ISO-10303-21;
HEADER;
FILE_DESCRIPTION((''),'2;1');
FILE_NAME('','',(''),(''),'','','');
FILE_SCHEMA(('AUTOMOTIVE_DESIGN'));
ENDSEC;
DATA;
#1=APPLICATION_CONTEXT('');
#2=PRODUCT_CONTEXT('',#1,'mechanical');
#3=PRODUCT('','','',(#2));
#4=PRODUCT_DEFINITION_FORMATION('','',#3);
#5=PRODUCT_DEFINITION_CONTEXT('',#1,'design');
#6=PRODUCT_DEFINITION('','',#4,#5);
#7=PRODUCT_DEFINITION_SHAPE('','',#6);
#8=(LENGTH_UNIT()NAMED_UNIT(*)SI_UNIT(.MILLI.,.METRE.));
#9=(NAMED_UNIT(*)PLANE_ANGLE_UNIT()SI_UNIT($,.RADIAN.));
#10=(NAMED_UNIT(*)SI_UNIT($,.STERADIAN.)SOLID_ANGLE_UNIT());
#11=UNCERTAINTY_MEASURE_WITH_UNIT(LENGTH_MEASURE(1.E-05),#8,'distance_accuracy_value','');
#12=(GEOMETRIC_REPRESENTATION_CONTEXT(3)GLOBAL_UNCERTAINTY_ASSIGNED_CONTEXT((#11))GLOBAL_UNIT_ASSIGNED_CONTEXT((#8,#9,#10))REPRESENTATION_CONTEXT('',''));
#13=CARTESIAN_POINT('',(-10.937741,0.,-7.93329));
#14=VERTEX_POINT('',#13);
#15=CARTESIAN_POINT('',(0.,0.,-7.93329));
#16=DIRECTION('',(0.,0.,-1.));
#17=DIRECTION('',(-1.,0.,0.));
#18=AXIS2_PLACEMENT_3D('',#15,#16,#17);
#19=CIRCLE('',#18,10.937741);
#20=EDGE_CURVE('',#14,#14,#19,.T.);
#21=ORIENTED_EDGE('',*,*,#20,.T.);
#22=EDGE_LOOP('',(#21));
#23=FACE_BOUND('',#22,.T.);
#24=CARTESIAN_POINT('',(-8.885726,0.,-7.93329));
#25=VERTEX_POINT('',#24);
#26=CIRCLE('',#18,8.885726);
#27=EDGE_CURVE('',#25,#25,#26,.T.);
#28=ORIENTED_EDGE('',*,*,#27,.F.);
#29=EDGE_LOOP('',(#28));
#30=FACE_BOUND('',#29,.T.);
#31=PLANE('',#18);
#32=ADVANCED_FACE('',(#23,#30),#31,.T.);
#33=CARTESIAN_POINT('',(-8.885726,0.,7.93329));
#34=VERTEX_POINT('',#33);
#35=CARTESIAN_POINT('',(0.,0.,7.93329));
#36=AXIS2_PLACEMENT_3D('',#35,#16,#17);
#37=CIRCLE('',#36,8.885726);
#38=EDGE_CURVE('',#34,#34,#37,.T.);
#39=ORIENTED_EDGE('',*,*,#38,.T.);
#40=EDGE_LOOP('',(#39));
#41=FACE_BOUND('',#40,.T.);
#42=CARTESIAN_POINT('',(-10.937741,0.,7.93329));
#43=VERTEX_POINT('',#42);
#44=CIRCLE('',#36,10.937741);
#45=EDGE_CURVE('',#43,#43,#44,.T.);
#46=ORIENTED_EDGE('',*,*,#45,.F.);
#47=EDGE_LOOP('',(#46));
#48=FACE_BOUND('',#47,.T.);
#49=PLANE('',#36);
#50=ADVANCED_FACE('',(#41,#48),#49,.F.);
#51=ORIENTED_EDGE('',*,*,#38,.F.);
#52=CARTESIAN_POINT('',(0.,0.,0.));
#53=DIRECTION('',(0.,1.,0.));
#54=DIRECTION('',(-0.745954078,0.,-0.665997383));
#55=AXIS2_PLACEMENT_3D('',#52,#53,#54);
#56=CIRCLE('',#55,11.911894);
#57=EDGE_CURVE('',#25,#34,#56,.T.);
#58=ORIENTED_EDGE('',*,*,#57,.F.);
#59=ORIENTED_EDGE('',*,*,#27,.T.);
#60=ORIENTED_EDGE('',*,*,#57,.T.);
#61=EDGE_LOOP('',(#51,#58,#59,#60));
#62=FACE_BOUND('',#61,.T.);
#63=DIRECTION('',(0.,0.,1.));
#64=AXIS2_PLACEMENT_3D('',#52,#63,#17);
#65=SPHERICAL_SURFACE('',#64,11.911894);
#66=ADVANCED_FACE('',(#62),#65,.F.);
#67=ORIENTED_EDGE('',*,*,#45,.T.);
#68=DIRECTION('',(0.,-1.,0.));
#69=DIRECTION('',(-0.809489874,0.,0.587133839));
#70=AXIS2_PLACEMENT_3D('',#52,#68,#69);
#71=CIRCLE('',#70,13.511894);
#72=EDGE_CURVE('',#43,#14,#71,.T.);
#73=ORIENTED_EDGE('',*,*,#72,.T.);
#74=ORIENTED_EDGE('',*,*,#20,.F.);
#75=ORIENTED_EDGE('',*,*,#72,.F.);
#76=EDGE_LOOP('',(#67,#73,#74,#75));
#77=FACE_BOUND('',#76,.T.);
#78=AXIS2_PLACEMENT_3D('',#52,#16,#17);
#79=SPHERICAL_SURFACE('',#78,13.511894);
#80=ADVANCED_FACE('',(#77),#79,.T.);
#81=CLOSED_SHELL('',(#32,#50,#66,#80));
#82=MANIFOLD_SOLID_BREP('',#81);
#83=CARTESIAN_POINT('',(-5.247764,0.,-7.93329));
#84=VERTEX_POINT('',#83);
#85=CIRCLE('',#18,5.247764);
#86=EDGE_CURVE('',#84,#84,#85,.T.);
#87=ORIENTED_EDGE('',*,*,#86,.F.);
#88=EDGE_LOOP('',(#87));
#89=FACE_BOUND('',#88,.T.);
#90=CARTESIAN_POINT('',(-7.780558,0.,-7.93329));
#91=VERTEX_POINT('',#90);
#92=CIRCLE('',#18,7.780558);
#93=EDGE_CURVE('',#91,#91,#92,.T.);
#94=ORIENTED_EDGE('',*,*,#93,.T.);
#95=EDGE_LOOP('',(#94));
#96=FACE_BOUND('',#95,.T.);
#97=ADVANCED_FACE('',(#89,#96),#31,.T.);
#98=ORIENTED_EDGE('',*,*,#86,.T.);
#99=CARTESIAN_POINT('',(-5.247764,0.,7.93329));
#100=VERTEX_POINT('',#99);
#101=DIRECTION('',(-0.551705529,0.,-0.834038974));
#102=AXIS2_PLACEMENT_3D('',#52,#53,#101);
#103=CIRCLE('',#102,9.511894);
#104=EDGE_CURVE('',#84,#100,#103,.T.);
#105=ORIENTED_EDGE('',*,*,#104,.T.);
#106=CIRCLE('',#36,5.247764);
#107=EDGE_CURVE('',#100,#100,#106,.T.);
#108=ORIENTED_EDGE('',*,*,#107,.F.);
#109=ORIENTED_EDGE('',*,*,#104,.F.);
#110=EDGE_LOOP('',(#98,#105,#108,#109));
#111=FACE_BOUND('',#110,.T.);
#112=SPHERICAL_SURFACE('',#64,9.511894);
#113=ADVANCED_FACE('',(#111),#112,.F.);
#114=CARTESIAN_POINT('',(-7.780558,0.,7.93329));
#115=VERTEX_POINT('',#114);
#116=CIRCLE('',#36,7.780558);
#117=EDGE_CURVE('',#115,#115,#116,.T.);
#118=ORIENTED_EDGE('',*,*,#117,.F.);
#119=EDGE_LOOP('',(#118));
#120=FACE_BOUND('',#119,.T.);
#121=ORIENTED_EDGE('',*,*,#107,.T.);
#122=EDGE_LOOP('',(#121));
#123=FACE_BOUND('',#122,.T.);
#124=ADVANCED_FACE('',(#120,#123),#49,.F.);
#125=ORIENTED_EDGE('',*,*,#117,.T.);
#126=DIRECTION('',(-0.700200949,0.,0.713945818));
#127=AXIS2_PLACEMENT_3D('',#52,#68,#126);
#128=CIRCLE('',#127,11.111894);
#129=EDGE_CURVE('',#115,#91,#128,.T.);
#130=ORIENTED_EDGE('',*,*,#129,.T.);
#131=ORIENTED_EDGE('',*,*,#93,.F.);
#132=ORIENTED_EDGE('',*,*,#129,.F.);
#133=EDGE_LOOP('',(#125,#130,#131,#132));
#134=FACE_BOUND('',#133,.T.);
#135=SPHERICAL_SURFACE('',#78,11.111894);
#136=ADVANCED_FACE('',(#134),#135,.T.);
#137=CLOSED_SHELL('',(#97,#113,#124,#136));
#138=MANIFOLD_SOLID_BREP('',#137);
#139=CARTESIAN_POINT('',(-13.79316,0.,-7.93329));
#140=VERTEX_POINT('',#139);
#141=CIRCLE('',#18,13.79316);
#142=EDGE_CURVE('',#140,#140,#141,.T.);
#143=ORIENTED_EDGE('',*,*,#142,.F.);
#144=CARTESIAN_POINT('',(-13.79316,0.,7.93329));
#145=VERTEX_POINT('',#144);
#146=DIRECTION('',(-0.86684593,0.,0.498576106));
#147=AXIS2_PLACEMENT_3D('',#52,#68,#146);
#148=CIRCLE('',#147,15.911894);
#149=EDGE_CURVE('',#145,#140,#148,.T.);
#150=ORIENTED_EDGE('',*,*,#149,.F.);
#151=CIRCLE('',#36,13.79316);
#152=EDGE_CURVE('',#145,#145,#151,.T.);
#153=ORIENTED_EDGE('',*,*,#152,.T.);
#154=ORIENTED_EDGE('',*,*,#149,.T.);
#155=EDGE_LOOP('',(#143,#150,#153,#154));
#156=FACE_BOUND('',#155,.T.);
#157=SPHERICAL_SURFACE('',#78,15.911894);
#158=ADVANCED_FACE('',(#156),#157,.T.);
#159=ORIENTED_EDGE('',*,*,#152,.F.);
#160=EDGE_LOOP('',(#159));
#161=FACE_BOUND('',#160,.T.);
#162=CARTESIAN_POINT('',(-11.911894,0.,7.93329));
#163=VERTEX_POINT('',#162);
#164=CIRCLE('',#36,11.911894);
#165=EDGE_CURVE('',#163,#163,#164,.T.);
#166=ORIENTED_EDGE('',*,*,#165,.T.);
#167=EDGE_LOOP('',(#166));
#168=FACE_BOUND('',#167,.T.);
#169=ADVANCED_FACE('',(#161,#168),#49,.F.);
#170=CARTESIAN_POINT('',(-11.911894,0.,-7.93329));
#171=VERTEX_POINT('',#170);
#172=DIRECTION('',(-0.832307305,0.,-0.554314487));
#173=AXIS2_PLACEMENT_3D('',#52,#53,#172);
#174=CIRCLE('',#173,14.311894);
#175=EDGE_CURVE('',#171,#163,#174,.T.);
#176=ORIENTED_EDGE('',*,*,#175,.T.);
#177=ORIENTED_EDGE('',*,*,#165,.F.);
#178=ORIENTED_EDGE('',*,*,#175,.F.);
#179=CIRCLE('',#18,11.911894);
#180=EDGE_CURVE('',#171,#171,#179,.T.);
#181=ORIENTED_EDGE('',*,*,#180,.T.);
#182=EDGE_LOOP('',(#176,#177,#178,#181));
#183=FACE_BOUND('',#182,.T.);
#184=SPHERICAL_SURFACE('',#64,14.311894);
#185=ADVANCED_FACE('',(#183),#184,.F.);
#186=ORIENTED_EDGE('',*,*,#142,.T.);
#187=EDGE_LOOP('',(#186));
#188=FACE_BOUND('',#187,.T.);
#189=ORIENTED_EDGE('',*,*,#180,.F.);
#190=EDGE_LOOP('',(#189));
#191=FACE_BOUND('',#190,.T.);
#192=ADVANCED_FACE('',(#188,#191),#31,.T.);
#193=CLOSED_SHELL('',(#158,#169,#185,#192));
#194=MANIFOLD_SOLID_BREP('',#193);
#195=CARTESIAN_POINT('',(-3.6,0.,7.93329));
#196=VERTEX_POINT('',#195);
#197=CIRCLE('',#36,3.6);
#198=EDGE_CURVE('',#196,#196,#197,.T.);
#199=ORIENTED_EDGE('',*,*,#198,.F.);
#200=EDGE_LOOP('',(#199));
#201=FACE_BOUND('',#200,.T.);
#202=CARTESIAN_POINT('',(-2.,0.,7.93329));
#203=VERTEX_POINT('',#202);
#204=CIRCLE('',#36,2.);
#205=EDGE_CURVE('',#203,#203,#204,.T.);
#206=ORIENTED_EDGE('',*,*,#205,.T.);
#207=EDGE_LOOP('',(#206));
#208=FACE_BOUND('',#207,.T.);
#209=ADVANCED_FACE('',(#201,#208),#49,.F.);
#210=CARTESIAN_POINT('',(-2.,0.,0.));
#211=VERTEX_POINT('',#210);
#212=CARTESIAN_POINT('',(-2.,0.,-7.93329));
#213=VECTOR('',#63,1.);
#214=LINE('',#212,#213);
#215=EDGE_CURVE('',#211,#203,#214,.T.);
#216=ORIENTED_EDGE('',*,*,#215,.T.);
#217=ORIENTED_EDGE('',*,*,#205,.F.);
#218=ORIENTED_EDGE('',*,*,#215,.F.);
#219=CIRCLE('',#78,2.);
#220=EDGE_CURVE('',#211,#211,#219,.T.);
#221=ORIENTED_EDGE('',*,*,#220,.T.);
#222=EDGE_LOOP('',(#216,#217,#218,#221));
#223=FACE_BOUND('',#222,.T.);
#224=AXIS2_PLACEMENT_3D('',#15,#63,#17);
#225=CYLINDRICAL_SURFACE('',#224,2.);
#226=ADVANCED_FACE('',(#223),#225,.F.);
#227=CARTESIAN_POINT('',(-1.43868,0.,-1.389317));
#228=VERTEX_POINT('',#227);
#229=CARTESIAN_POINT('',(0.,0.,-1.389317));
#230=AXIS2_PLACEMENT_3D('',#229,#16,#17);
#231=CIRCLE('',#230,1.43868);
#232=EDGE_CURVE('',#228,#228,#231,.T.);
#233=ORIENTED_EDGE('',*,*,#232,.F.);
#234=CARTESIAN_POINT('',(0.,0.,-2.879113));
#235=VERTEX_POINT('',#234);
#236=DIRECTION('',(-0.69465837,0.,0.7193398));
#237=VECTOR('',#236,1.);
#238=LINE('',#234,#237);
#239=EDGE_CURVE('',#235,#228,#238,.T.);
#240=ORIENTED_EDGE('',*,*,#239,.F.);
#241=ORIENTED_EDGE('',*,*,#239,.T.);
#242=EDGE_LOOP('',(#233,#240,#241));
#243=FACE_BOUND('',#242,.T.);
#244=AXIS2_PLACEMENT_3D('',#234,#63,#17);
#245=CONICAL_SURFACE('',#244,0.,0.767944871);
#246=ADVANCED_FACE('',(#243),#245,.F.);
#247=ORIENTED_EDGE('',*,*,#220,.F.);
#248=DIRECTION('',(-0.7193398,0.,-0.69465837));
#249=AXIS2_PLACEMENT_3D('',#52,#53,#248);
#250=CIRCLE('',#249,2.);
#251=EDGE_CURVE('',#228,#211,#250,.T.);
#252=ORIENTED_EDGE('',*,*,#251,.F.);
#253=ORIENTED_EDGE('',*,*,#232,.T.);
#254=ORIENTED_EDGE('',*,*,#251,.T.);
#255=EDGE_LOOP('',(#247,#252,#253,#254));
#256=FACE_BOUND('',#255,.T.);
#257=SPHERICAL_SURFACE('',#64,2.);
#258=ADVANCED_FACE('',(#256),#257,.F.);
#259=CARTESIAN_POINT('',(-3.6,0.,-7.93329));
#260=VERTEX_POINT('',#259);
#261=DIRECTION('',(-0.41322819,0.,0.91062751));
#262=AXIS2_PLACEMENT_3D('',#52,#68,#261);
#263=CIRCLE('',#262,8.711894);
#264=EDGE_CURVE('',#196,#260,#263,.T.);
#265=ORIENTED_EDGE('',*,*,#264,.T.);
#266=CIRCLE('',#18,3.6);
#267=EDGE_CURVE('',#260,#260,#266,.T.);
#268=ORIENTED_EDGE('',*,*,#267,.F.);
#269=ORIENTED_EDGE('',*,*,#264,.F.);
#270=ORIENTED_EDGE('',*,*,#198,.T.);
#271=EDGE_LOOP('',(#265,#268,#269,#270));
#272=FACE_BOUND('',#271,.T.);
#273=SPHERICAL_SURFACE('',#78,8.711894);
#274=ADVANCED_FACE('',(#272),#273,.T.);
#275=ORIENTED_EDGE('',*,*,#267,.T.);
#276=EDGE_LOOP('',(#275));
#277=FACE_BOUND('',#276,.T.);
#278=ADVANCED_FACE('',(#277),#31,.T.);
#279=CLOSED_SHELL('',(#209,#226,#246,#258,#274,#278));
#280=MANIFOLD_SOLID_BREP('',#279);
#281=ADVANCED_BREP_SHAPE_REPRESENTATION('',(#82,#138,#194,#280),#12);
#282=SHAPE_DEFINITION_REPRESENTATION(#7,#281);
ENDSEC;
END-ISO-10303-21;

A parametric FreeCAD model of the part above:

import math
import FreeCAD as App
import Part
import Sketcher

V = App.Vector
Q = App.Units.Quantity

doc = App.newDocument("Part")
body = doc.addObject("PartDesign::Body", "Body")

# Sketch on XZ plane
sketch1 = doc.addObject("Sketcher::SketchObject", "Sketch")
body.addObject(sketch1)
sketch1.AttachmentSupport = (doc.XZ_Plane, [""])
sketch1.MapMode = "FlatFace"
sketch1.addGeometry([
    Part.LineSegment(V(-2, 7.9, 0), V(-3.6, 7.9, 0)),  # 0
    Part.ArcOfCircle(Part.Circle(V(0, 0, 0), V(0, 0, 1), 8.7), math.radians(114), math.radians(246)),  # 1
    Part.LineSegment(V(-3.6, -7.9, 0), V(0, -7.9, 0)),  # 2
    Part.LineSegment(V(0, -7.9, 0), V(0, -2.9, 0)),  # 3
    Part.LineSegment(V(0, -2.9, 0), V(-1.4, -1.4, 0)),  # 4
    Part.ArcOfCircle(Part.Circle(V(0, 0, 0), V(0, 0, 1), 2), math.radians(180), math.radians(224)),  # 5
    Part.LineSegment(V(-2, 0, 0), V(-2, 7.9, 0)),  # 6
], False)
sketch1.addConstraint([
    Sketcher.Constraint("Coincident", 0, 2, 1, 1),
    Sketcher.Constraint("Coincident", 1, 2, 2, 1),
    Sketcher.Constraint("Coincident", 2, 2, 3, 1),
    Sketcher.Constraint("Coincident", 3, 2, 4, 1),
    Sketcher.Constraint("Tangent", 4, 2, 5, 2),
    Sketcher.Constraint("Tangent", 5, 1, 6, 1),
    Sketcher.Constraint("Coincident", 6, 2, 0, 1),
    Sketcher.Constraint("Horizontal", 0),
    Sketcher.Constraint("Horizontal", 2),
    Sketcher.Constraint("Vertical", 3),
    Sketcher.Constraint("Vertical", 6),
    Sketcher.Constraint("Coincident", 1, 3, -1, 1),
    Sketcher.Constraint("Coincident", 5, 3, -1, 1),
    Sketcher.Constraint("PointOnObject", 2, 2, -2),
    Sketcher.Constraint("Vertical", 0, 2, 1, 2),
    Sketcher.Constraint("Radius", 5, Q("2 mm")),
    Sketcher.Constraint("Angle", 4, Q("134 deg")),
    Sketcher.Constraint("DistanceX", 0, 2, 0, 1, Q("1.6 mm")),
    Sketcher.Constraint("Radius", 1, Q("8.711894 mm")),
])
revolution = doc.addObject("PartDesign::Revolution", "Revolution")
body.addObject(revolution)
revolution.Profile = sketch1
revolution.ReferenceAxis = (sketch1, ["V_Axis"])
revolution.Angle = 360
body2 = doc.addObject("PartDesign::Body", "Body001")

# Sketch on XZ plane
sketch2 = doc.addObject("Sketcher::SketchObject", "Sketch001")
body2.addObject(sketch2)
sketch2.AttachmentSupport = (doc.getObject("XZ_Plane001"), [""])
sketch2.MapMode = "FlatFace"
sketch2.addGeometry([
    Part.ArcOfCircle(Part.Circle(V(0, 0, 0), V(0, 0, 1), 9.5), math.radians(123), math.radians(237)),
    Part.LineSegment(V(-5.2, 7.9, 0), V(-7.8, 7.9, 0)),
    Part.ArcOfCircle(Part.Circle(V(0, 0, 0), V(0, 0, 1), 11.1), math.radians(134), math.radians(226)),
    Part.LineSegment(V(-7.8, -7.9, 0), V(-5.2, -7.9, 0)),
], False)
sketch2.addConstraint([
    Sketcher.Constraint("Coincident", 0, 1, 1, 1),
    Sketcher.Constraint("Coincident", 1, 2, 2, 1),
    Sketcher.Constraint("Coincident", 2, 2, 3, 1),
    Sketcher.Constraint("Coincident", 3, 2, 0, 2),
    Sketcher.Constraint("Horizontal", 1),
    Sketcher.Constraint("Horizontal", 3),
    Sketcher.Constraint("Coincident", 0, 3, -1, 1),
    Sketcher.Constraint("Coincident", 2, 3, -1, 1),
    Sketcher.Constraint("Vertical", 1, 2, 2, 2),
    Sketcher.Constraint("Radius", 0, Q("9.511894 mm")),
    Sketcher.Constraint("Radius", 2, Q("11.111894 mm")),
    Sketcher.Constraint("DistanceX", 1, 2, 1, 1, Q("2.532794 mm")),
])
revolution2 = doc.addObject("PartDesign::Revolution", "Revolution001")
body2.addObject(revolution2)
revolution2.Profile = sketch2
revolution2.ReferenceAxis = (sketch2, ["V_Axis"])
revolution2.Angle = 360
body3 = doc.addObject("PartDesign::Body", "Body002")

# Sketch on XZ plane
sketch3 = doc.addObject("Sketcher::SketchObject", "Sketch002")
body3.addObject(sketch3)
sketch3.AttachmentSupport = (doc.getObject("XZ_Plane002"), [""])
sketch3.MapMode = "FlatFace"
sketch3.addGeometry([
    Part.ArcOfCircle(Part.Circle(V(0, 0, 0), V(0, 0, 1), 11.9), math.radians(138), math.radians(222)),
    Part.LineSegment(V(-8.9, 7.9, 0), V(-10.9, 7.9, 0)),
    Part.ArcOfCircle(Part.Circle(V(0, 0, 0), V(0, 0, 1), 13.5), math.radians(144), math.radians(216)),
    Part.LineSegment(V(-10.9, -7.9, 0), V(-8.9, -7.9, 0)),
], False)
sketch3.addConstraint([
    Sketcher.Constraint("Coincident", 0, 1, 1, 1),
    Sketcher.Constraint("Coincident", 1, 2, 2, 1),
    Sketcher.Constraint("Coincident", 2, 2, 3, 1),
    Sketcher.Constraint("Coincident", 3, 2, 0, 2),
    Sketcher.Constraint("Horizontal", 1),
    Sketcher.Constraint("Horizontal", 3),
    Sketcher.Constraint("Coincident", 0, 3, -1, 1),
    Sketcher.Constraint("Coincident", 2, 3, -1, 1),
    Sketcher.Constraint("Vertical", 1, 2, 2, 2),
    Sketcher.Constraint("Radius", 0, Q("11.911894 mm")),
    Sketcher.Constraint("Radius", 2, Q("13.511894 mm")),
    Sketcher.Constraint("DistanceX", 1, 2, 1, 1, Q("2.052015 mm")),
])
revolution3 = doc.addObject("PartDesign::Revolution", "Revolution002")
body3.addObject(revolution3)
revolution3.Profile = sketch3
revolution3.ReferenceAxis = (sketch3, ["V_Axis"])
revolution3.Angle = 360
body4 = doc.addObject("PartDesign::Body", "Body003")

# Sketch on XZ plane
sketch4 = doc.addObject("Sketcher::SketchObject", "Sketch003")
body4.addObject(sketch4)
sketch4.AttachmentSupport = (doc.getObject("XZ_Plane003"), [""])
sketch4.MapMode = "FlatFace"
sketch4.addGeometry([
    Part.ArcOfCircle(Part.Circle(V(0, 0, 0), V(0, 0, 1), 14.3), math.radians(146), math.radians(214)),
    Part.LineSegment(V(-11.9, 7.9, 0), V(-13.8, 7.9, 0)),
    Part.ArcOfCircle(Part.Circle(V(0, 0, 0), V(0, 0, 1), 15.9), math.radians(150), math.radians(210)),
    Part.LineSegment(V(-13.8, -7.9, 0), V(-11.9, -7.9, 0)),
], False)
sketch4.addConstraint([
    Sketcher.Constraint("Coincident", 0, 1, 1, 1),
    Sketcher.Constraint("Coincident", 1, 2, 2, 1),
    Sketcher.Constraint("Coincident", 2, 2, 3, 1),
    Sketcher.Constraint("Coincident", 3, 2, 0, 2),
    Sketcher.Constraint("Horizontal", 1),
    Sketcher.Constraint("Horizontal", 3),
    Sketcher.Constraint("Coincident", 0, 3, -1, 1),
    Sketcher.Constraint("Coincident", 2, 3, -1, 1),
    Sketcher.Constraint("Vertical", 1, 2, 2, 2),
    Sketcher.Constraint("Radius", 0, Q("14.311894 mm")),
    Sketcher.Constraint("Radius", 2, Q("15.911894 mm")),
    Sketcher.Constraint("DistanceX", 1, 2, 1, 1, Q("1.881267 mm")),
])
revolution4 = doc.addObject("PartDesign::Revolution", "Revolution003")
body4.addObject(revolution4)
revolution4.Profile = sketch4
revolution4.ReferenceAxis = (sketch4, ["V_Axis"])
revolution4.Angle = 360

doc.recompute()
